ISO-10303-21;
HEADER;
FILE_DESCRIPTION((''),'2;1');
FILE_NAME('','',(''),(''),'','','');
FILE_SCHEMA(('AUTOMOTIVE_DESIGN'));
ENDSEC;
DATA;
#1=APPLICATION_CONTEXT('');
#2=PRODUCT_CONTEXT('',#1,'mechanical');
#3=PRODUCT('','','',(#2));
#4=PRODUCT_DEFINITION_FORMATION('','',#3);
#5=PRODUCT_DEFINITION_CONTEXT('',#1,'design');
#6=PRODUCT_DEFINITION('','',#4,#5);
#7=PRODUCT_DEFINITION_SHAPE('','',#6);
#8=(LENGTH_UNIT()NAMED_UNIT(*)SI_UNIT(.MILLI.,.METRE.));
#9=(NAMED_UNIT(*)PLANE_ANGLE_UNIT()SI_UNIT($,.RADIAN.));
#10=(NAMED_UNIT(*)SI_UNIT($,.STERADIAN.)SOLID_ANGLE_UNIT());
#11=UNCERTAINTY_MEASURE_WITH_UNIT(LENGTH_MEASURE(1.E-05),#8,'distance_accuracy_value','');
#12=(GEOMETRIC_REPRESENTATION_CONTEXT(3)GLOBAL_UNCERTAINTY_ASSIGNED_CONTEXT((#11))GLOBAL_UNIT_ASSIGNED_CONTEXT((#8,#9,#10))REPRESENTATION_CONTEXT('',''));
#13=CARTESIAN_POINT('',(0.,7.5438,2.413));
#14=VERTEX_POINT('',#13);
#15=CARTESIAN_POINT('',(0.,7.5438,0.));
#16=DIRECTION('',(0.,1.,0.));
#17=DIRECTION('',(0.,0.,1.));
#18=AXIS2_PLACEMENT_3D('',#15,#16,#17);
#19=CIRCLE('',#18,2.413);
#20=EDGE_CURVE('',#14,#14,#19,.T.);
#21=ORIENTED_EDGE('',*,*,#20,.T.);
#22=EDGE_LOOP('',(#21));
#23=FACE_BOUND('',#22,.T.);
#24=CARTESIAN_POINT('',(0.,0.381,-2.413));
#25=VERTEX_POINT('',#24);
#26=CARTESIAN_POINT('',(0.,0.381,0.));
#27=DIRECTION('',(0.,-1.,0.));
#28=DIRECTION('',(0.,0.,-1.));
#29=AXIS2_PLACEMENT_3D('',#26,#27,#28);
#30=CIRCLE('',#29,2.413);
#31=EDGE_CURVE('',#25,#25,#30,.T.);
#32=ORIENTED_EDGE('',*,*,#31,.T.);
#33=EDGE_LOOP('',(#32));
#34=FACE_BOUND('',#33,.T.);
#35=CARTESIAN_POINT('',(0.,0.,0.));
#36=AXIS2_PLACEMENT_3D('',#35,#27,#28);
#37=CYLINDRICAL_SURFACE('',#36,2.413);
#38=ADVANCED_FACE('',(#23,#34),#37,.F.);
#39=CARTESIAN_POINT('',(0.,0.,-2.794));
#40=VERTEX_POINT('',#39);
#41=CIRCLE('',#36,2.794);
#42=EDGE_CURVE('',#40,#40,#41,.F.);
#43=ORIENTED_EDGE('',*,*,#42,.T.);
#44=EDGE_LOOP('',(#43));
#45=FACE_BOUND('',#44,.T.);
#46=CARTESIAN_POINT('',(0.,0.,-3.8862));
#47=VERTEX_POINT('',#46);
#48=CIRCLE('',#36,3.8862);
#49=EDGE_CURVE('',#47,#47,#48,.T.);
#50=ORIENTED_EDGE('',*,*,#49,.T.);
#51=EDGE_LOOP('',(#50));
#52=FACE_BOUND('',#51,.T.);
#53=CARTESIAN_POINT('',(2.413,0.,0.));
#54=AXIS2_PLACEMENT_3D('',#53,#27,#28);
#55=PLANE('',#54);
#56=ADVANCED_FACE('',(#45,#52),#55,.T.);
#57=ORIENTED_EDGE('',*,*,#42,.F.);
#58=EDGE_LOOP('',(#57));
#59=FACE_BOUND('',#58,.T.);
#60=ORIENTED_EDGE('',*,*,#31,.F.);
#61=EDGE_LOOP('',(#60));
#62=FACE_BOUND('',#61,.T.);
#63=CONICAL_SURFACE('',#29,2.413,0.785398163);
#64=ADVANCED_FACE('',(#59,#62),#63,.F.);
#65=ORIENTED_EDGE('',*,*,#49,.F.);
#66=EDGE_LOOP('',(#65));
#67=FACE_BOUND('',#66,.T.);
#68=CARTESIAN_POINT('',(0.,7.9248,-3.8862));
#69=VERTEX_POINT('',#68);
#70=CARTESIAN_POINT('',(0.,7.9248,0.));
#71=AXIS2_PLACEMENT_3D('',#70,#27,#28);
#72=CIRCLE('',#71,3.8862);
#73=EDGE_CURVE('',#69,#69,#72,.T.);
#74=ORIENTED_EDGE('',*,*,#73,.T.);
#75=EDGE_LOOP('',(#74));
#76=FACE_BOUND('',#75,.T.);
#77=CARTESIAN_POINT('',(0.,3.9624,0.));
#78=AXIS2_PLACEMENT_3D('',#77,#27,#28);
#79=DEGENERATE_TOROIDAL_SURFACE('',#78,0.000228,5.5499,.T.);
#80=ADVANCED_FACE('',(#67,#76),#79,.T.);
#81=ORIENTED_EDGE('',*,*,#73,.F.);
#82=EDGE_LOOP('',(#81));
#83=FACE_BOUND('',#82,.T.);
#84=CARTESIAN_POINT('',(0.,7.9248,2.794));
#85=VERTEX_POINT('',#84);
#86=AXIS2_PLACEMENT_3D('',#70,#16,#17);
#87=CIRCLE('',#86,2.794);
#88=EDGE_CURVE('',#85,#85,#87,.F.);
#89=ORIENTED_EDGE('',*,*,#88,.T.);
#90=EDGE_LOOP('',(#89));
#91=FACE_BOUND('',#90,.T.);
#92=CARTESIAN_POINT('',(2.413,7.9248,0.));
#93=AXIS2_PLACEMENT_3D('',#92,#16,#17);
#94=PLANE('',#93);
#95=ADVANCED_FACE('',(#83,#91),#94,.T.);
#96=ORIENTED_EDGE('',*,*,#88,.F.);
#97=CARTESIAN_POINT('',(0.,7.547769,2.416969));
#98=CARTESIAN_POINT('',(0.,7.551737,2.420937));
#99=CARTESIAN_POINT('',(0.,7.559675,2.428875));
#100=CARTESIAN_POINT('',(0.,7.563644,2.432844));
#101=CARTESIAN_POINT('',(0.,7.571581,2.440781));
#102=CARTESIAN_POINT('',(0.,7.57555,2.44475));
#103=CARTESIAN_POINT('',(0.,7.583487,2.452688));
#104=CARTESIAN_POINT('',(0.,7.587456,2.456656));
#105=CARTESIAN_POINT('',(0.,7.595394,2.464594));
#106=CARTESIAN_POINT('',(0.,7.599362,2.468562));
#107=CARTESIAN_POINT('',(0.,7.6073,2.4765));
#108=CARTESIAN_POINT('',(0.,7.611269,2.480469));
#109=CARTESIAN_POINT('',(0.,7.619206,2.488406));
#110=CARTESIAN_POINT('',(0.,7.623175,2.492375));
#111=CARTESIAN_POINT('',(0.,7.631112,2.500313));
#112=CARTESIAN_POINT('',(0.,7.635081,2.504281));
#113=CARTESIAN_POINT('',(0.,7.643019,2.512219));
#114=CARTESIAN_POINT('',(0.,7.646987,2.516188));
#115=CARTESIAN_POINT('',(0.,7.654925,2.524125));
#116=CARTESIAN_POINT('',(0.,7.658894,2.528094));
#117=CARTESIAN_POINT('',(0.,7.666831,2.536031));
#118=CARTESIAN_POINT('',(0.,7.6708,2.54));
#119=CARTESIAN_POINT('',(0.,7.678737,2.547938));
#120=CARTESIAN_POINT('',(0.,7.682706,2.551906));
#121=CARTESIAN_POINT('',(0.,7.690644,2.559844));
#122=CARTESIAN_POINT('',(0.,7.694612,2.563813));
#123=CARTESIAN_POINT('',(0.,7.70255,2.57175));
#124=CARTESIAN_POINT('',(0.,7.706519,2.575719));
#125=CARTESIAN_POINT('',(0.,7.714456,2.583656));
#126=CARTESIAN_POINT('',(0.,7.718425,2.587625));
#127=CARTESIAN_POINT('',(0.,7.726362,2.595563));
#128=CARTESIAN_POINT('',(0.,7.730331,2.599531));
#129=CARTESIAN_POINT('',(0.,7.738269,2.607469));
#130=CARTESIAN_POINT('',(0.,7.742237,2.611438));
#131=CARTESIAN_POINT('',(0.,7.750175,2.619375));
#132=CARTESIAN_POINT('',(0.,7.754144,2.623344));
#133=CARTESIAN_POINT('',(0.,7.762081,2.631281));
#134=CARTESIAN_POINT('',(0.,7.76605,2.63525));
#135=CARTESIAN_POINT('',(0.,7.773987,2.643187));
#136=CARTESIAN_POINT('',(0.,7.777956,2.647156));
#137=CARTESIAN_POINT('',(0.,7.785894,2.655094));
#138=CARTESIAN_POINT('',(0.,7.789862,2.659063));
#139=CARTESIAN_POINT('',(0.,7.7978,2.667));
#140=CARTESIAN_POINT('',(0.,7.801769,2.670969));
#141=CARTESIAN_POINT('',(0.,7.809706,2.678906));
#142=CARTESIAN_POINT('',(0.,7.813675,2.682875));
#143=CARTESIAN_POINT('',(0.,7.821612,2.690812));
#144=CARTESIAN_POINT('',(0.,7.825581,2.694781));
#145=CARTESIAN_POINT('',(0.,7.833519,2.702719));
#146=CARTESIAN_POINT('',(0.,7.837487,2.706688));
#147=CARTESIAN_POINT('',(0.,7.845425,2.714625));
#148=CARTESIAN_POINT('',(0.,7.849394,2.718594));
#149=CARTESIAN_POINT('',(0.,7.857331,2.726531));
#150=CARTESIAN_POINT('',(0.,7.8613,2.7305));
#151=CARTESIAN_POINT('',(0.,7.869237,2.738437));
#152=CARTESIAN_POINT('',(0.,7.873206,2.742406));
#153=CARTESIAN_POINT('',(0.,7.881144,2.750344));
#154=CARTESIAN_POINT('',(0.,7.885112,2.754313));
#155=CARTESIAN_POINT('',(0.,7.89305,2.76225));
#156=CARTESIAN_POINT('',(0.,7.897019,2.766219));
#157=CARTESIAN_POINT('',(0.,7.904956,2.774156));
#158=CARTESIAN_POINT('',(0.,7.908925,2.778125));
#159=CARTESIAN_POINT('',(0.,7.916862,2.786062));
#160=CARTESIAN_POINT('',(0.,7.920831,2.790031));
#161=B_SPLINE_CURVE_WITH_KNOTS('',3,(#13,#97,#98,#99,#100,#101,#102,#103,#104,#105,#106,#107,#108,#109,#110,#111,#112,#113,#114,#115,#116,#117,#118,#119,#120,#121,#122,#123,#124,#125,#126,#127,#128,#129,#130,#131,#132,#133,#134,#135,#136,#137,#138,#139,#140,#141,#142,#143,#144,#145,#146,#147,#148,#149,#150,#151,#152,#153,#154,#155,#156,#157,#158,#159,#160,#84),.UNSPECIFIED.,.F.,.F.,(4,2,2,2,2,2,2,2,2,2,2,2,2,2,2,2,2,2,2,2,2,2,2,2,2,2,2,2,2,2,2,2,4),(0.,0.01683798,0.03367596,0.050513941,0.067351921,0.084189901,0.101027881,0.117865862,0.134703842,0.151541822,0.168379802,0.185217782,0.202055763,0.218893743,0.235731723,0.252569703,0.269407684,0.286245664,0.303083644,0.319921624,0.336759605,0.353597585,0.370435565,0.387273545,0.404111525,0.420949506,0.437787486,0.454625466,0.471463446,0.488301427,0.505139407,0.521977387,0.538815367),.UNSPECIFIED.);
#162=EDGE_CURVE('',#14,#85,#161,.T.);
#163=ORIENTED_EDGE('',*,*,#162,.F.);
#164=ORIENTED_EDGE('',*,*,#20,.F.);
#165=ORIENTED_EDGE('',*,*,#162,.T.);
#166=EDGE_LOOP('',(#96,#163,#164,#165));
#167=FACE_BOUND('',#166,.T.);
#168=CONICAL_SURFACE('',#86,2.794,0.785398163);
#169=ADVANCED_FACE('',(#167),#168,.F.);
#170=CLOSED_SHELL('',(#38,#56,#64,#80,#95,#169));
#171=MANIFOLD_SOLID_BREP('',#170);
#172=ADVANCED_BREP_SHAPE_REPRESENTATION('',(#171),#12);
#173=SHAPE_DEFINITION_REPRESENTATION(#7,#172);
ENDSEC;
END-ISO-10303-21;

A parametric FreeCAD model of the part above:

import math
import FreeCAD as App
import Part
import Sketcher
Q = App.Units.Quantity


def edges_at(feature, points):
    """Names of the edges that pass closest to the given points."""
    edges = feature.Shape.Edges
    near = lambda p: min(range(len(edges)), key=lambda i: edges[i].distToShape(Part.Vertex(*p))[0])
    return sorted({f"Edge{near(p) + 1}" for p in points})

doc = App.newDocument("Part")
body = doc.addObject("PartDesign::Body", "Body")

sketch1 = body.newObject("Sketcher::SketchObject", "Sketch")
sketch1.AttachmentSupport = (doc.getObject("XY_Plane"), [""])
sketch1.MapMode = "FlatFace"
sketch1.addGeometry([
    Part.LineSegment(App.Vector(2.4, 7.9, 0), App.Vector(2.4, 0, 0)),
    Part.LineSegment(App.Vector(2.4, 0, 0), App.Vector(3.9, 0, 0)),
    Part.ArcOfCircle(Part.Circle(App.Vector(0, 4, 0), App.Vector(0, 0, 1), 5.5), math.radians(-46), math.radians(46)),
    Part.LineSegment(App.Vector(3.9, 7.9, 0), App.Vector(2.4, 7.9, 0)),
], False)
sketch1.addConstraint([
    Sketcher.Constraint("Coincident", 0, 2, 1, 1),
    Sketcher.Constraint("Coincident", 1, 2, 2, 1),
    Sketcher.Constraint("Coincident", 2, 2, 3, 1),
    Sketcher.Constraint("Coincident", 3, 2, 0, 1),
    Sketcher.Constraint("Vertical", 0),
    Sketcher.Constraint("Horizontal", 1),
    Sketcher.Constraint("Horizontal", 3),
    Sketcher.Constraint("PointOnObject", 0, 2, -1),
    Sketcher.Constraint("Vertical", 1, 2, 2, 2),
    Sketcher.Constraint("Radius", 2, Q("0.2185 in")),
    Sketcher.Constraint("DistanceX", 1, 1, 1, 2, Q("0.058 in")),
    Sketcher.Constraint("DistanceY", 0, 2, 0, 1, Q("0.312 in")),
    Sketcher.Constraint("DistanceX", -1, 1, 0, 2, Q("0.095 in")),
])
revolution = body.newObject("PartDesign::Revolution", "Revolution")
revolution.Profile = sketch1
revolution.ReferenceAxis = (sketch1, ["V_Axis"])
revolution.Angle = 360
doc.recompute()

chamfer = body.newObject("PartDesign::Chamfer", "Chamfer")
chamfer.Base = (revolution, edges_at(revolution, [(0, 7.925, 2.413), (0, 0, 2.413)]))
chamfer.Size = Q("0.015 in")

doc.recompute()
